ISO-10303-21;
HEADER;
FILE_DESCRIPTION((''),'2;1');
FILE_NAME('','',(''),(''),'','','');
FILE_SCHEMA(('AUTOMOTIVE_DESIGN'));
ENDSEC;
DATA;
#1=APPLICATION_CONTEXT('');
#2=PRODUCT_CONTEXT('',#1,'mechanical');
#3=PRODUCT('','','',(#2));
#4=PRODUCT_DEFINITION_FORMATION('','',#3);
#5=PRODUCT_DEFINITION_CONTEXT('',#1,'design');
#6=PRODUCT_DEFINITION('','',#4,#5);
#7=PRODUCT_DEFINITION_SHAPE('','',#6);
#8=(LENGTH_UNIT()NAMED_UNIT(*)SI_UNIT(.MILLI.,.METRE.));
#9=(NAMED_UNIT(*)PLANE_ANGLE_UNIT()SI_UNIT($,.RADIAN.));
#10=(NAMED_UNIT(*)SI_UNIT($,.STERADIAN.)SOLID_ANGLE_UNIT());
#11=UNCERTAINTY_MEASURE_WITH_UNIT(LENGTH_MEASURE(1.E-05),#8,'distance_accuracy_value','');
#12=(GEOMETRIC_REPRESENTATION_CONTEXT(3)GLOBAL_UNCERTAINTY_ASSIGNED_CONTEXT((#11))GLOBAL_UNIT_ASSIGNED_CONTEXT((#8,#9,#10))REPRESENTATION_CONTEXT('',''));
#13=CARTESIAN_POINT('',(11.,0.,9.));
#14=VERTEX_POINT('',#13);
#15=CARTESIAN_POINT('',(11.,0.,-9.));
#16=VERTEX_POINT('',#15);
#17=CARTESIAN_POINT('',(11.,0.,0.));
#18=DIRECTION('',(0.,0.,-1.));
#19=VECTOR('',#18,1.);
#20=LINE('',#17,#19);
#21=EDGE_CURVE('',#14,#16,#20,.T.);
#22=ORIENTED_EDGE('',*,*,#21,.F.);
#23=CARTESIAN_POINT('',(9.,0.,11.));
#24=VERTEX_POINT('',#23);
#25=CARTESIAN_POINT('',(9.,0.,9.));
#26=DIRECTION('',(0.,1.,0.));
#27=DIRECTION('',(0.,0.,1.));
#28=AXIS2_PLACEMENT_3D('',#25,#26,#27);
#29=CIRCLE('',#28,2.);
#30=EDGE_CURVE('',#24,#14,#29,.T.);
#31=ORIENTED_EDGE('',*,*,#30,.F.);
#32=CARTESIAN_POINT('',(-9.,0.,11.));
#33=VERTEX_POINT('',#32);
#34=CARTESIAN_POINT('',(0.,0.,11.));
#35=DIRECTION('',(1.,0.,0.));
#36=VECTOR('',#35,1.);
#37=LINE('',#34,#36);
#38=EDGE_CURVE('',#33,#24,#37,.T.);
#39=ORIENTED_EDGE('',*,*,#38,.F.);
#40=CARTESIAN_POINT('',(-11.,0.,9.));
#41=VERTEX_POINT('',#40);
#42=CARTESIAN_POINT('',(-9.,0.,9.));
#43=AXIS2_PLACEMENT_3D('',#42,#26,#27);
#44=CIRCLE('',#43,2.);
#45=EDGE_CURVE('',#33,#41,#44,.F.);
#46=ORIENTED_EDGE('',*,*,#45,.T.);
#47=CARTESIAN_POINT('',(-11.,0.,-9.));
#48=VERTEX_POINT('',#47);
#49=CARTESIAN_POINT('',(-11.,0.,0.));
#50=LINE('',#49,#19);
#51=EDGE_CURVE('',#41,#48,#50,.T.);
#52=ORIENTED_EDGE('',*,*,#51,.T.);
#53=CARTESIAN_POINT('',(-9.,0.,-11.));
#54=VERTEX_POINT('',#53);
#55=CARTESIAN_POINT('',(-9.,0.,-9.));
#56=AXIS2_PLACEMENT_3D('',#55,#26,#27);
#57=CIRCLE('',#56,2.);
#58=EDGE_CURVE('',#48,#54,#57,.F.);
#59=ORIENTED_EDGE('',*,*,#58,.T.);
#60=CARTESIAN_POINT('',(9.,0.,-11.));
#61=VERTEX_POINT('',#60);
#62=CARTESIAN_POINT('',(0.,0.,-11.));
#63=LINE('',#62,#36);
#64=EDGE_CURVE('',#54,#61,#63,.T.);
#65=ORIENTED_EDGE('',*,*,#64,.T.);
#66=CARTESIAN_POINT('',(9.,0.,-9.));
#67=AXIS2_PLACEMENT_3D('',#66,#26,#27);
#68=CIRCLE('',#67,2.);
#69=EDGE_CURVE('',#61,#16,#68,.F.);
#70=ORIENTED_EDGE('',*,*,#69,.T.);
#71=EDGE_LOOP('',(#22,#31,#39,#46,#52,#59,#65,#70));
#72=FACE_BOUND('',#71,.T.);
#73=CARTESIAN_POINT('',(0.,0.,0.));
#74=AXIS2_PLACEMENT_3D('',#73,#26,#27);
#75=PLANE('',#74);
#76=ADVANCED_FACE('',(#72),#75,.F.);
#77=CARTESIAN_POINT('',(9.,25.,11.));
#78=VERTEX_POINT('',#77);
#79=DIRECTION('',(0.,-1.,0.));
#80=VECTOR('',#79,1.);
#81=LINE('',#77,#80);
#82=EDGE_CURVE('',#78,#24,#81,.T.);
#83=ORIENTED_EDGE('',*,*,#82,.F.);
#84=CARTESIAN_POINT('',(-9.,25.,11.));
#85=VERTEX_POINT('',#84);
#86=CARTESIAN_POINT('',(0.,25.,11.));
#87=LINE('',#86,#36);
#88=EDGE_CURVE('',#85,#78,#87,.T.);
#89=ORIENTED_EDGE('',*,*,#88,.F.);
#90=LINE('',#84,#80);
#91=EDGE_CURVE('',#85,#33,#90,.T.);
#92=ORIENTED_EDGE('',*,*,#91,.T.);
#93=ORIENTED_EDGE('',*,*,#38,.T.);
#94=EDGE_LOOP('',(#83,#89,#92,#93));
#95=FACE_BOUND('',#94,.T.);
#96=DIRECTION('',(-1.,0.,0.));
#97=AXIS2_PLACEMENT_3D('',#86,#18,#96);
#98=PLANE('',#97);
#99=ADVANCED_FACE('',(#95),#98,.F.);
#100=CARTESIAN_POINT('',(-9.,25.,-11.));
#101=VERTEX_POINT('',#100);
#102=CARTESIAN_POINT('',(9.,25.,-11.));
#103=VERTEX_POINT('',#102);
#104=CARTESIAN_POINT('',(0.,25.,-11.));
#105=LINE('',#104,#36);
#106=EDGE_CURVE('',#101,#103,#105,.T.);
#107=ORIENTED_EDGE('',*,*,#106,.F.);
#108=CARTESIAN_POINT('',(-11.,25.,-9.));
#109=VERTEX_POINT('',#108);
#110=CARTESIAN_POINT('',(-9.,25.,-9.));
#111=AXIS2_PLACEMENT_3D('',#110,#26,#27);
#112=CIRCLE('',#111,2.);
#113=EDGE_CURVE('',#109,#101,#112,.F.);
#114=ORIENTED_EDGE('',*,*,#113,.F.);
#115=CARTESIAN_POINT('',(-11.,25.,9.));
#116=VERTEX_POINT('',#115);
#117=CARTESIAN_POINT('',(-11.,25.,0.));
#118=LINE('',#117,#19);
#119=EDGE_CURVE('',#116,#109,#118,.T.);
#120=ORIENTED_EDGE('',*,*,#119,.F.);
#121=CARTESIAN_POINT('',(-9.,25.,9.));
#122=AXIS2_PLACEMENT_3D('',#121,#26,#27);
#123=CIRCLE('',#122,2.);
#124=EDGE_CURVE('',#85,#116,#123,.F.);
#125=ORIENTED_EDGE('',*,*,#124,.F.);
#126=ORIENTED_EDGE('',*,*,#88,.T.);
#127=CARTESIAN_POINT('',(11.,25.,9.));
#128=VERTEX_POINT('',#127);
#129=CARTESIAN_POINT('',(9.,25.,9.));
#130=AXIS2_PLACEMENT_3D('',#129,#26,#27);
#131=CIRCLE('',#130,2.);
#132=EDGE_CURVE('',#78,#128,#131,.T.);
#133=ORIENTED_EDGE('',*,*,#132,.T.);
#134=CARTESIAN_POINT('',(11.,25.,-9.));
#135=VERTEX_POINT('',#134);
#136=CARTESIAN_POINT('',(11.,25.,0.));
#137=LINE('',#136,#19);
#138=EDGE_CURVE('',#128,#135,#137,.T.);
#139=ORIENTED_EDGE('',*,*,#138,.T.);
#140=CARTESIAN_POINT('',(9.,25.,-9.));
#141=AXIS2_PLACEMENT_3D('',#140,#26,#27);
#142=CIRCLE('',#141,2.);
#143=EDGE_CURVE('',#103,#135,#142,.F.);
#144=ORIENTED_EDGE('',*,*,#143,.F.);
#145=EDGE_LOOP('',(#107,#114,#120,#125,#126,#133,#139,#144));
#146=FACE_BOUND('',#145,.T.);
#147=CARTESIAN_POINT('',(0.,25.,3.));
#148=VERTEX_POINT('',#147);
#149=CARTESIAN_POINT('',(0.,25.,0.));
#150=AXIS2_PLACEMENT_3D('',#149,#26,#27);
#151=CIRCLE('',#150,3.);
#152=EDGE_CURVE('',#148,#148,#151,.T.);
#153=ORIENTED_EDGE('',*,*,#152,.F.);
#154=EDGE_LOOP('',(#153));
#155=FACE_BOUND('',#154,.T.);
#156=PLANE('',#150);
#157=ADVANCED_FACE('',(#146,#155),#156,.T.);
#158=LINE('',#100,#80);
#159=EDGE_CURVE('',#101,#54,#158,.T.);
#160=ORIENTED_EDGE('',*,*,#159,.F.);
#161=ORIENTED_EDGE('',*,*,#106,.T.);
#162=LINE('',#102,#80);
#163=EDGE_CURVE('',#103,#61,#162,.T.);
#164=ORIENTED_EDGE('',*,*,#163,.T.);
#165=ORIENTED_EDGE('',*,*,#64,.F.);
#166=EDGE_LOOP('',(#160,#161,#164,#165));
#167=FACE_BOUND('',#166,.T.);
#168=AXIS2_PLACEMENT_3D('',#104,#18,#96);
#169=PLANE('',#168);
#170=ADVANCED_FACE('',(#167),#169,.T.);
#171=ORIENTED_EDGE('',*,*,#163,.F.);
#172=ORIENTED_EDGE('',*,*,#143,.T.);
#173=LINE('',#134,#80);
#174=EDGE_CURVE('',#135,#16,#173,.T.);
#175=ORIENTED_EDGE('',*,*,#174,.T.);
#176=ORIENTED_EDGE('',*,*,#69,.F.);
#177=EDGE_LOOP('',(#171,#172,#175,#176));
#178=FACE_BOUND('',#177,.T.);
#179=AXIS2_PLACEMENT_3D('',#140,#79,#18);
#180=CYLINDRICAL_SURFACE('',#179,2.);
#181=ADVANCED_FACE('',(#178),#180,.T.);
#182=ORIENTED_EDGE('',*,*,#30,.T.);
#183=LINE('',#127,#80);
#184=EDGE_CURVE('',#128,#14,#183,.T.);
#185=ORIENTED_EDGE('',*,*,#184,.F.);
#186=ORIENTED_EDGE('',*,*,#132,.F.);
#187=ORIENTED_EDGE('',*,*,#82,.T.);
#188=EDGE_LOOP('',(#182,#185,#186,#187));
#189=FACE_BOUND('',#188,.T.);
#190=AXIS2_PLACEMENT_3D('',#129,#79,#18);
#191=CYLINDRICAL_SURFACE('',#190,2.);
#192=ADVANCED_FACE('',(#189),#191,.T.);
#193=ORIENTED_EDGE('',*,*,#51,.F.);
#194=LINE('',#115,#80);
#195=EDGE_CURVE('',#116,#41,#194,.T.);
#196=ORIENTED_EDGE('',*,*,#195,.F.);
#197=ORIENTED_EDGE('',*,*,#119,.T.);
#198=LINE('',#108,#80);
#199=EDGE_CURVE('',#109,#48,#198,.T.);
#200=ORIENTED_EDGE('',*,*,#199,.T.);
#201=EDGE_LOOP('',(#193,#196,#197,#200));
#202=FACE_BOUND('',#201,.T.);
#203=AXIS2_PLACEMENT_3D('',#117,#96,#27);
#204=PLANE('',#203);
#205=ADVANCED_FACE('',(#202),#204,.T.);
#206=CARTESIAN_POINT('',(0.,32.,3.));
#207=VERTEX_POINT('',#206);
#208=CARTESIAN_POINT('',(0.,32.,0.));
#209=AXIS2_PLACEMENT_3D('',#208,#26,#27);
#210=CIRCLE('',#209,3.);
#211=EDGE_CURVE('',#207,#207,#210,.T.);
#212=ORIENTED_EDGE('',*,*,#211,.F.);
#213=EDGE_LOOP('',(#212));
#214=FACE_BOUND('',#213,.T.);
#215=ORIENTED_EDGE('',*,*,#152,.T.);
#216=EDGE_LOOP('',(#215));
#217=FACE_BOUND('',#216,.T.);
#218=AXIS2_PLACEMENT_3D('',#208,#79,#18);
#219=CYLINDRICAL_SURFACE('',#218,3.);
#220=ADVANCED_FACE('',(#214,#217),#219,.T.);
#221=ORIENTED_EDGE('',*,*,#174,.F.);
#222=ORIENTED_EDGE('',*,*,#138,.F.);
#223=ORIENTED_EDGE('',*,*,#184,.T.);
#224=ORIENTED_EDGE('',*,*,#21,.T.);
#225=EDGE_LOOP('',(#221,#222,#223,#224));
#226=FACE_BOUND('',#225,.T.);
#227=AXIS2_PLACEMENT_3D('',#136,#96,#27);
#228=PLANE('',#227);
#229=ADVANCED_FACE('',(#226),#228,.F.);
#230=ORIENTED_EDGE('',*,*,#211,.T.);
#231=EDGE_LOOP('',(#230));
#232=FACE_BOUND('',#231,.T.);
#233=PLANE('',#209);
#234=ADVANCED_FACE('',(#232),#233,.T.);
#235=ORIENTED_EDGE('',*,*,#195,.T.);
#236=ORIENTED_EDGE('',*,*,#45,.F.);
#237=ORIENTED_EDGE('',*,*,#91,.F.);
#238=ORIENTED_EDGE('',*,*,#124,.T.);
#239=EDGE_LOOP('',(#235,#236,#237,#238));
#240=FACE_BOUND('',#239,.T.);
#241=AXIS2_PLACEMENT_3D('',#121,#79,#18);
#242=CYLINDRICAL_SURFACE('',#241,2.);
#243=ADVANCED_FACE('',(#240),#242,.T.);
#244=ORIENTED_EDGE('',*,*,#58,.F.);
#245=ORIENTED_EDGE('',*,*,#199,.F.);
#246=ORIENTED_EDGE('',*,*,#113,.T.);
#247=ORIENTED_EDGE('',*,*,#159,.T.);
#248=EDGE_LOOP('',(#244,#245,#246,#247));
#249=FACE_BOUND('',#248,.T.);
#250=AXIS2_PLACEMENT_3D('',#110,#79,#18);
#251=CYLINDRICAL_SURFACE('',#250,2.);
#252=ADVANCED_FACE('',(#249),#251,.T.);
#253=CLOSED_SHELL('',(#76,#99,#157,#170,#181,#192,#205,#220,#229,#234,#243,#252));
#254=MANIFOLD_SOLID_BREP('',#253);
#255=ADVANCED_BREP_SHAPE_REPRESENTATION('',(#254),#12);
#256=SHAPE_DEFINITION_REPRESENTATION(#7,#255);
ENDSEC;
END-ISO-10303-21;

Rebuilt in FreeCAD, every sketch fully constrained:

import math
import FreeCAD as App
import Part
import Sketcher
Q = App.Units.Quantity

doc = App.newDocument("Part")
body = doc.addObject("PartDesign::Body", "Body")

# Sketch on XZ plane
sketch1 = body.newObject("Sketcher::SketchObject", "Sketch")
sketch1.AttachmentSupport = (doc.getObject("XZ_Plane"), [""])
sketch1.MapMode = "FlatFace"
sketch1.addGeometry([
    Part.ArcOfCircle(Part.Circle(App.Vector(-9, -9, 0), App.Vector(0, 0, 1), 2), math.radians(-180), math.radians(-90)),  # 0
    Part.LineSegment(App.Vector(-11, -9, 0), App.Vector(-11, 9, 0)),  # 1
    Part.ArcOfCircle(Part.Circle(App.Vector(-9, 9, 0), App.Vector(0, 0, 1), 2), math.radians(90), math.radians(180)),  # 2
    Part.LineSegment(App.Vector(-9, 11, 0), App.Vector(9, 11, 0)),  # 3
    Part.ArcOfCircle(Part.Circle(App.Vector(9, 9, 0), App.Vector(0, 0, 1), 2), math.radians(0), math.radians(90)),  # 4
    Part.LineSegment(App.Vector(11, 9, 0), App.Vector(11, -9, 0)),  # 5
    Part.ArcOfCircle(Part.Circle(App.Vector(9, -9, 0), App.Vector(0, 0, 1), 2), math.radians(-90), math.radians(0)),  # 6
    Part.LineSegment(App.Vector(9, -11, 0), App.Vector(-9, -11, 0)),  # 7
], False)
sketch1.addConstraint([
    Sketcher.Constraint("Tangent", 0, 1, 1, 1),
    Sketcher.Constraint("Tangent", 1, 2, 2, 2),
    Sketcher.Constraint("Tangent", 2, 1, 3, 1),
    Sketcher.Constraint("Tangent", 3, 2, 4, 2),
    Sketcher.Constraint("Tangent", 4, 1, 5, 1),
    Sketcher.Constraint("Tangent", 5, 2, 6, 2),
    Sketcher.Constraint("Tangent", 6, 1, 7, 1),
    Sketcher.Constraint("Tangent", 7, 2, 0, 2),
    Sketcher.Constraint("Vertical", 1),
    Sketcher.Constraint("Horizontal", 3),
    Sketcher.Constraint("Vertical", 5),
    Sketcher.Constraint("Horizontal", 7),
    Sketcher.Constraint("Equal", 0, 2),
    Sketcher.Constraint("Equal", 2, 4),
    Sketcher.Constraint("Equal", 4, 6),
    Sketcher.Constraint("Symmetric", 0, 3, 4, 3, -1, 1),
    Sketcher.Constraint("Equal", 7, 1),
    Sketcher.Constraint("Radius", 0, Q("2 mm")),
    Sketcher.Constraint("DistanceX", 3, 1, 3, 2, Q("18 mm")),
])
pad1 = body.newObject("PartDesign::Pad", "Pad")
pad1.Profile = sketch1
pad1.Length = 25
pad1.Reversed = True

# Sketch on XZ plane
sketch2 = body.newObject("Sketcher::SketchObject", "Sketch001")
sketch2.AttachmentSupport = (doc.getObject("XZ_Plane"), [""])
sketch2.MapMode = "FlatFace"
sketch2.AttachmentOffset = App.Placement(App.Vector(0, 0, -25), App.Rotation())
sketch2.addGeometry(Part.Circle(App.Vector(0, 0, 0), App.Vector(0, 0, 1), 3), False)
sketch2.addConstraint([
    Sketcher.Constraint("Coincident", 0, 3, -1, 1),
    Sketcher.Constraint("Diameter", 0, Q("6 mm")),
])
pad2 = body.newObject("PartDesign::Pad", "Pad001")
pad2.Profile = sketch2
pad2.Length = 7
pad2.Reversed = True

doc.recompute()
